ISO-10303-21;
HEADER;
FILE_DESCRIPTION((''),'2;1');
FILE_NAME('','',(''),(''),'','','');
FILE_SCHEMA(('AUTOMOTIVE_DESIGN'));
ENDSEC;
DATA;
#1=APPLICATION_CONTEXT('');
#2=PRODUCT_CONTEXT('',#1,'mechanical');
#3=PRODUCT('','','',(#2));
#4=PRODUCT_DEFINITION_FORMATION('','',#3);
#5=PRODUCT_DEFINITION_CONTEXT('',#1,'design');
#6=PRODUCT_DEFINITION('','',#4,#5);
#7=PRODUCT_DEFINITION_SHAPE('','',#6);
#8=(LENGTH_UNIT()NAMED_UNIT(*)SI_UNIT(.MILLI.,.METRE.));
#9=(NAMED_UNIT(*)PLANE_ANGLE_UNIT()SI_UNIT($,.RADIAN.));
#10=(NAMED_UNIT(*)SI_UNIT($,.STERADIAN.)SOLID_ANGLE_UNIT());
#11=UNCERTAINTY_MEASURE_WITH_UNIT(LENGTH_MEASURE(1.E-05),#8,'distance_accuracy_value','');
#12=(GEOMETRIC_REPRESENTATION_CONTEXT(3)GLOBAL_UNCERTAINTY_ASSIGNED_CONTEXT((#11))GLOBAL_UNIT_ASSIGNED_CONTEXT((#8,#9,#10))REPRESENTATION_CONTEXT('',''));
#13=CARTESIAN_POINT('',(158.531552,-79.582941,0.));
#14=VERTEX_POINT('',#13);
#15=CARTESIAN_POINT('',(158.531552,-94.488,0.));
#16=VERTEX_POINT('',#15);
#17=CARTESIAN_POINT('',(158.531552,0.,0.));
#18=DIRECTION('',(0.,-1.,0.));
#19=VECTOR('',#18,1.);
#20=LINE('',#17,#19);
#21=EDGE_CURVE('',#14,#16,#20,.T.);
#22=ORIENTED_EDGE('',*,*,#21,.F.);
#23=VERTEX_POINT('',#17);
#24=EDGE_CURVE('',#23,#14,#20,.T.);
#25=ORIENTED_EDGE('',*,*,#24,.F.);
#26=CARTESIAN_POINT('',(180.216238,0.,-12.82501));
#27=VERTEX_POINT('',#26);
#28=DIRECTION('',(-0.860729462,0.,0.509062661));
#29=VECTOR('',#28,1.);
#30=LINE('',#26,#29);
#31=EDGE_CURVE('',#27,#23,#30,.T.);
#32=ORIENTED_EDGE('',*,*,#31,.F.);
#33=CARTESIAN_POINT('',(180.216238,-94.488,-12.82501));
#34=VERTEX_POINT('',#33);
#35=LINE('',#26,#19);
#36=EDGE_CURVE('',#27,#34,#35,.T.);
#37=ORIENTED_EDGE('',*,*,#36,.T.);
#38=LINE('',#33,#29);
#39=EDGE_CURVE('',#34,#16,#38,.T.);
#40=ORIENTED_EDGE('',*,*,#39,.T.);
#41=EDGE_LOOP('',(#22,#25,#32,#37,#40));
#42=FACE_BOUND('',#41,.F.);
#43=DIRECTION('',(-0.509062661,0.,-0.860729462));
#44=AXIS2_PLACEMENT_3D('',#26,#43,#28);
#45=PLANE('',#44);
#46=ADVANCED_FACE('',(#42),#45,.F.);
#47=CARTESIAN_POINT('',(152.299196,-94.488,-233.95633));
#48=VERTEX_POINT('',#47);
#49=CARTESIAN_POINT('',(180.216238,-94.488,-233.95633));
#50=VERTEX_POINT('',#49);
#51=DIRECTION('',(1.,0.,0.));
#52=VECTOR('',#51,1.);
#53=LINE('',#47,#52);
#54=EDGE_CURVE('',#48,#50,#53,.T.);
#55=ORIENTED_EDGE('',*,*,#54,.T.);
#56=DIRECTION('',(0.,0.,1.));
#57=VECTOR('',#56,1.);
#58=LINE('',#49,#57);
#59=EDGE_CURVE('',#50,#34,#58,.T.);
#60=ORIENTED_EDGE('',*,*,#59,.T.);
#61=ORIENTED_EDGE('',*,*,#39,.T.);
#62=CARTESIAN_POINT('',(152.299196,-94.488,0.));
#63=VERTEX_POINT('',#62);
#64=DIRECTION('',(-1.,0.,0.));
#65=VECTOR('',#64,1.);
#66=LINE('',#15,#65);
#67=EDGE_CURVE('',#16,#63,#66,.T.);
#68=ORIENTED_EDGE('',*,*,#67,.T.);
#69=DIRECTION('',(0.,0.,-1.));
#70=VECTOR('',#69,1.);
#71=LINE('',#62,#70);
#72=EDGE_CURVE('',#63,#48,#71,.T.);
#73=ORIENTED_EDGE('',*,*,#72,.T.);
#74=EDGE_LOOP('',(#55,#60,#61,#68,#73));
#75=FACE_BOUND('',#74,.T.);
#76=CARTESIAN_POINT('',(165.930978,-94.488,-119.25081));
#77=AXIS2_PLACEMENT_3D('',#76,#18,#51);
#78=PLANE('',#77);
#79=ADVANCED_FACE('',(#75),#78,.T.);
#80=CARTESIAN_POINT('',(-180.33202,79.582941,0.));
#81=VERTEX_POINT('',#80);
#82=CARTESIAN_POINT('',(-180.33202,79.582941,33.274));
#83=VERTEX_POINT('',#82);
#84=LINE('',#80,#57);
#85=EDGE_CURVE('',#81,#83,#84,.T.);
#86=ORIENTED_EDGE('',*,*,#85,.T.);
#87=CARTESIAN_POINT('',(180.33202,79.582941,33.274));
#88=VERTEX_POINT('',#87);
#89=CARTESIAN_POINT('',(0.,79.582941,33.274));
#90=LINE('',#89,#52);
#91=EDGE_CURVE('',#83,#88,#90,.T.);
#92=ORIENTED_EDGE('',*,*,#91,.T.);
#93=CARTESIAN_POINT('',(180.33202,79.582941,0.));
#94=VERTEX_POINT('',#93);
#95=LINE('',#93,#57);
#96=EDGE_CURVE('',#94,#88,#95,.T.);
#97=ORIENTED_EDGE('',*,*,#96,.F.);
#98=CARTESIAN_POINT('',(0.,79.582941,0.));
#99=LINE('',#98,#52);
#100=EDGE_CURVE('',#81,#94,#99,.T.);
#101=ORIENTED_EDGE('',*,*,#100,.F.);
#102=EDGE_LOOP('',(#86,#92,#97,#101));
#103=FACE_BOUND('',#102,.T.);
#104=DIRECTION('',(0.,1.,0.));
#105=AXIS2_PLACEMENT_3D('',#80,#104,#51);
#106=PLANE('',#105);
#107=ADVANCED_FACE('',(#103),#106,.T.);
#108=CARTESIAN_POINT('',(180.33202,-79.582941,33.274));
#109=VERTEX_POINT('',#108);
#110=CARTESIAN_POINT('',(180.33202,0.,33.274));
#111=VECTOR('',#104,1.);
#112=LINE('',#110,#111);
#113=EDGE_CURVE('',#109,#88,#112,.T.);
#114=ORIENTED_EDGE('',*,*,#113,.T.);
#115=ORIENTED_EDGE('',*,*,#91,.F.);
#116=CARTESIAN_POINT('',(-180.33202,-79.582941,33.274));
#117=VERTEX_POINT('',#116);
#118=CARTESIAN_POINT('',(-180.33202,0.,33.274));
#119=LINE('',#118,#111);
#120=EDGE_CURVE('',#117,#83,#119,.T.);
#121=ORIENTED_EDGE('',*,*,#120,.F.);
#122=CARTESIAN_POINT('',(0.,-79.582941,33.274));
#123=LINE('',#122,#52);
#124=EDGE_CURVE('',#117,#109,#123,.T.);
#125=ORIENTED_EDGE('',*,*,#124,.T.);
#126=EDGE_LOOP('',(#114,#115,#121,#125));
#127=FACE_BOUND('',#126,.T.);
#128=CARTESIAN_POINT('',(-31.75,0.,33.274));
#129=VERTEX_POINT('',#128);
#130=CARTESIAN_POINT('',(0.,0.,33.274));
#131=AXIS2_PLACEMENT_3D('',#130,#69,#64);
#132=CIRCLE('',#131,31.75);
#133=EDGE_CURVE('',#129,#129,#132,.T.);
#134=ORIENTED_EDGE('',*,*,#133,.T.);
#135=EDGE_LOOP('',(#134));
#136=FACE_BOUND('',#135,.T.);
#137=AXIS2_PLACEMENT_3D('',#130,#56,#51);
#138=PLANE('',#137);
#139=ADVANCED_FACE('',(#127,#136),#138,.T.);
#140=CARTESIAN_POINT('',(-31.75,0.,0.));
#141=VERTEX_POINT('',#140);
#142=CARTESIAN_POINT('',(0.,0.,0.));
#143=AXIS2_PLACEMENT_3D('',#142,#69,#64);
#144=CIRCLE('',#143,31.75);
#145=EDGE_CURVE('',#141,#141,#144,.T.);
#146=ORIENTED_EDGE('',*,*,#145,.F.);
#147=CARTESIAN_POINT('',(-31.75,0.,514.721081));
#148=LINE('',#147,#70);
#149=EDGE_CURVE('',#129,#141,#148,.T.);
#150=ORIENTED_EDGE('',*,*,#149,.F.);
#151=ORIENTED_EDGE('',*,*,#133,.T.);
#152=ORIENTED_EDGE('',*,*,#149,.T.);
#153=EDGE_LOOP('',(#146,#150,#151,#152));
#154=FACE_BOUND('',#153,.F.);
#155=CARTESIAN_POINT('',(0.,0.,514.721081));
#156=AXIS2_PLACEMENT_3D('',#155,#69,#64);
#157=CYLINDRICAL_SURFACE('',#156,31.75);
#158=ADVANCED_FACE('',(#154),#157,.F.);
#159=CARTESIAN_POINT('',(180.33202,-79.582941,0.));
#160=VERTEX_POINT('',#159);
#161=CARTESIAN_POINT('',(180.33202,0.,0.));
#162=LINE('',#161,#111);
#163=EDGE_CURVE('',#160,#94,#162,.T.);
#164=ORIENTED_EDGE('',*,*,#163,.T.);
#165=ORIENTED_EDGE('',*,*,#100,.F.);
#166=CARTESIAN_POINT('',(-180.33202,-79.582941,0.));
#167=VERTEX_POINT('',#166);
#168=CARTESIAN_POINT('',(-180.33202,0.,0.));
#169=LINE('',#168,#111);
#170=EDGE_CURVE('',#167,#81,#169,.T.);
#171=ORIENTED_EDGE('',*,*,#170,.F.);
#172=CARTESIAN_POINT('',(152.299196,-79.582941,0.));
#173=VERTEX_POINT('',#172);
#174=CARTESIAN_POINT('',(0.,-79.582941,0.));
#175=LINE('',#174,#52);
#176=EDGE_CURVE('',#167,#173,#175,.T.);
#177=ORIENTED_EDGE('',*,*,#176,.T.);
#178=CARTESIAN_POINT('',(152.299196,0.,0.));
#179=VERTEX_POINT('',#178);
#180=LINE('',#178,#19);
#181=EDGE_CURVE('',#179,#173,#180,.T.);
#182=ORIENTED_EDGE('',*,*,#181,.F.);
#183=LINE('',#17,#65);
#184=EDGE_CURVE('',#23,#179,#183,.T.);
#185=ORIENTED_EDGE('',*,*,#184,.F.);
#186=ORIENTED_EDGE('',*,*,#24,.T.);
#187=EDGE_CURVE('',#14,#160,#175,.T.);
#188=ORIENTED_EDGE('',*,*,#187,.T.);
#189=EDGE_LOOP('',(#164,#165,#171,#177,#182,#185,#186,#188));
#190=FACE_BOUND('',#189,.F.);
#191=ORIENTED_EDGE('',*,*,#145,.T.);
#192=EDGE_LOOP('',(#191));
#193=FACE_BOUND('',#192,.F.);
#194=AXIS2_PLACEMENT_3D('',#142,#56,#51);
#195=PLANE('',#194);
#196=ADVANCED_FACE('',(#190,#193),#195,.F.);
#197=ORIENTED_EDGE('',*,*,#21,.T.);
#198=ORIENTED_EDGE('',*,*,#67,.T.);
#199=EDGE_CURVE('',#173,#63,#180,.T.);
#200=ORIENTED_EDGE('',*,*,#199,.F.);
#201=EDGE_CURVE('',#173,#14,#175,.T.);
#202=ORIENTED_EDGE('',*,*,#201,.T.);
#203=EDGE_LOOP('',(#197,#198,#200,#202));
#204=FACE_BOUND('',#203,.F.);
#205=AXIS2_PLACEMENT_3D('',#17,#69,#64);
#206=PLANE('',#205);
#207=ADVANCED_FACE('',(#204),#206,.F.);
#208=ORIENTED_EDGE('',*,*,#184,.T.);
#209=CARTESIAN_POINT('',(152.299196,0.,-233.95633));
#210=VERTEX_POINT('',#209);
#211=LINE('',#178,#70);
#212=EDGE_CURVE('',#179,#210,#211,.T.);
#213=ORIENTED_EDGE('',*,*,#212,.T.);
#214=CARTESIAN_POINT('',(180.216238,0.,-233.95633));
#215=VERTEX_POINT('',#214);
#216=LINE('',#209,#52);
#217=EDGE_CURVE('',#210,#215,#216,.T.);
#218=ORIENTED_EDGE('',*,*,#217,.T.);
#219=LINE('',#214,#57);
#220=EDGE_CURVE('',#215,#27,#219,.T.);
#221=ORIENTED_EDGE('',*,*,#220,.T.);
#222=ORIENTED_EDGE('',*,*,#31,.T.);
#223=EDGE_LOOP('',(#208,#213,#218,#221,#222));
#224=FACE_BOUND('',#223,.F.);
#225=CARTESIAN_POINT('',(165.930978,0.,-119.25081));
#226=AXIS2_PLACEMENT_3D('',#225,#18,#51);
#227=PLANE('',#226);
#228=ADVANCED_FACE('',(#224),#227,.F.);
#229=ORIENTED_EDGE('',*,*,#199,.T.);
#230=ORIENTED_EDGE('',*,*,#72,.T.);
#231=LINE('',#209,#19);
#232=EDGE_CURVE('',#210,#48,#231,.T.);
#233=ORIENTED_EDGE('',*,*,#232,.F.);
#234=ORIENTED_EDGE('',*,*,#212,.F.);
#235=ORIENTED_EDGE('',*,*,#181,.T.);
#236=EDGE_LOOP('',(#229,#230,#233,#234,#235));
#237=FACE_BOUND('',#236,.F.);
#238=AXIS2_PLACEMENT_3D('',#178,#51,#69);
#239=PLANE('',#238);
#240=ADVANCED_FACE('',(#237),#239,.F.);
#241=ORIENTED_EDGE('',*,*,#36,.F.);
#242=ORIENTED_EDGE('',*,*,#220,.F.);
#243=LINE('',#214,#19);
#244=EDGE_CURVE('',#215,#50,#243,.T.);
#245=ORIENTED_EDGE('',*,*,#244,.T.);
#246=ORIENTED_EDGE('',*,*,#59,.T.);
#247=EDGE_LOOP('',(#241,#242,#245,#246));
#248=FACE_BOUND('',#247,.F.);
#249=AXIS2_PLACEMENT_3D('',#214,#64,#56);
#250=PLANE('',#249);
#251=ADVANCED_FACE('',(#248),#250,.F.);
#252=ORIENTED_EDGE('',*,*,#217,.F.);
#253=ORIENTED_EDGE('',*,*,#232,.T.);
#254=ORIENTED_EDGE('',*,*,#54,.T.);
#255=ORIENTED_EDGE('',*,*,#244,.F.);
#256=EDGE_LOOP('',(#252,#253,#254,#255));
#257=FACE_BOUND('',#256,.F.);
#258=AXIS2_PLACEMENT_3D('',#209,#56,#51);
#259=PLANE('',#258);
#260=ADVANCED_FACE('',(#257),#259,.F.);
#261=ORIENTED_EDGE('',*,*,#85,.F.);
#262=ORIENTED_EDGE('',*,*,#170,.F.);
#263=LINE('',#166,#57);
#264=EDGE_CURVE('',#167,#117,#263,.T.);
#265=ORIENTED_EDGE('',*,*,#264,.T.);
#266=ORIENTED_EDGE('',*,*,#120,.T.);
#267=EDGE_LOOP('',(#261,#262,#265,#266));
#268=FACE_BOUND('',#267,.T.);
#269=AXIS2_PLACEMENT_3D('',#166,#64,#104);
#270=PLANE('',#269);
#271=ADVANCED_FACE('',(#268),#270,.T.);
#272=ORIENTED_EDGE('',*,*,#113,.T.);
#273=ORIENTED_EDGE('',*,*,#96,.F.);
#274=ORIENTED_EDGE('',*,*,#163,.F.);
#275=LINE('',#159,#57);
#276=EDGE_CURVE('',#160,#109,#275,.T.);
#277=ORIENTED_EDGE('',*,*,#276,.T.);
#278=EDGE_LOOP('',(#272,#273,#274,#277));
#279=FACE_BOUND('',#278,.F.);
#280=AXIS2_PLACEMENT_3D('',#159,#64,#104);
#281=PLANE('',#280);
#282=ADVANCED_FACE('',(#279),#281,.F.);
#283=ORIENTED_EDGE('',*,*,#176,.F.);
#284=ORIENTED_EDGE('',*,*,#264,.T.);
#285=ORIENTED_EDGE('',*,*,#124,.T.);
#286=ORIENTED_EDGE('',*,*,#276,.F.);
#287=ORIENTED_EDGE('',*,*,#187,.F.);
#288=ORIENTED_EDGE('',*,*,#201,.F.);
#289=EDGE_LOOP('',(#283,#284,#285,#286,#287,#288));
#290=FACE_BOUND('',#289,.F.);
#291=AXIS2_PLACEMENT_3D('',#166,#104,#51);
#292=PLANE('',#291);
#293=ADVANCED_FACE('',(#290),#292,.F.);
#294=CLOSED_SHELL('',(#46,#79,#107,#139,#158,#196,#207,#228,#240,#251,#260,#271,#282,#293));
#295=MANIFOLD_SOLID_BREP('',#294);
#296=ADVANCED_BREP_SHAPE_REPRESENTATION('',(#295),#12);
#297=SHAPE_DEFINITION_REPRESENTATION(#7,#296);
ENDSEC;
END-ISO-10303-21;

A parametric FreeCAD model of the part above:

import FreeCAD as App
import Part
import Sketcher

V = App.Vector
Q = App.Units.Quantity


def add_polygon(sketch, points):
    """Adds a closed chain of lines whose ends are joined by coincident constraints."""
    first, n = sketch.GeometryCount, len(points)
    for a, b in zip(points, points[1:] + points[:1]):
        sketch.addGeometry(Part.LineSegment(App.Vector(*a, 0), App.Vector(*b, 0)), False)
    for i in range(n):
        sketch.addConstraint(Sketcher.Constraint("Coincident", first + i, 2, first + (i + 1) % n, 1))

doc = App.newDocument("Part")
body = doc.addObject("PartDesign::Body", "Body")

sketch1 = doc.addObject("Sketcher::SketchObject", "Sketch")
body.addObject(sketch1)
sketch1.AttachmentSupport = (doc.XY_Plane, [""])
sketch1.MapMode = "FlatFace"
add_polygon(sketch1, [(-180.33202, 79.582941), (-180.33202, -79.582941), (180.33202, -79.582941), (180.33202, 79.582941)])
sketch1.addConstraint(Sketcher.Constraint("Vertical", 0))
sketch1.addConstraint(Sketcher.Constraint("Horizontal", 1))
sketch1.addConstraint(Sketcher.Constraint("Vertical", 2))
sketch1.addConstraint(Sketcher.Constraint("Horizontal", 3))
sketch1.addConstraint(Sketcher.Constraint("Symmetric", 0, 2, 2, 2, -1, 1))
sketch1.addConstraint(Sketcher.Constraint("DistanceX", 1, 1, 1, 2, 360.66404))
sketch1.addConstraint(Sketcher.Constraint("DistanceY", 0, 2, 0, 1, 159.165882))
pad1 = doc.addObject("PartDesign::Pad", "Pad")
body.addObject(pad1)
pad1.Profile = sketch1
pad1.Length = Q("1.31 in")

sketch2 = doc.addObject("Sketcher::SketchObject", "Sketch001")
body.addObject(sketch2)
sketch2.AttachmentSupport = (doc.XZ_Plane, [""])
sketch2.MapMode = "FlatFace"
add_polygon(sketch2, [(158.531552, 0), (152.299196, 0), (152.299196, -233.95633), (180.216238, -233.95633), (180.216238, -12.82501)])
sketch2.addConstraint(Sketcher.Constraint("Horizontal", 0))
sketch2.addConstraint(Sketcher.Constraint("Vertical", 1))
sketch2.addConstraint(Sketcher.Constraint("Horizontal", 2))
sketch2.addConstraint(Sketcher.Constraint("Vertical", 3))
sketch2.addConstraint(Sketcher.Constraint("PointOnObject", 0, 2, -1))
sketch2.addConstraint(Sketcher.Constraint("DistanceY", 1, 2, 1, 1, 233.95633))
sketch2.addConstraint(Sketcher.Constraint("DistanceY", 3, 1, 3, 2, 221.13132))
sketch2.addConstraint(Sketcher.Constraint("Distance", 4, 25.193382))
sketch2.addConstraint(Sketcher.Constraint("DistanceX", 0, 2, 0, 1, 6.232356))
sketch2.addConstraint(Sketcher.Constraint("DistanceX", -1, 1, 2, 2, 180.216238))
pad2 = doc.addObject("PartDesign::Pad", "Pad001")
body.addObject(pad2)
pad2.Profile = sketch2
pad2.Length = Q("3.72 in")

sketch3 = doc.addObject("Sketcher::SketchObject", "Sketch002")
body.addObject(sketch3)
sketch3.AttachmentSupport = (doc.XY_Plane, [""])
sketch3.MapMode = "FlatFace"
sketch3.AttachmentOffset = App.Placement(V(0, 0, 1.31 * 25.4), App.Rotation())
sketch3.addGeometry(Part.Circle(V(0, 0, 0), V(0, 0, 1), 31.75), False)
sketch3.addConstraint(Sketcher.Constraint("Coincident", 0, 3, -1, 1))
sketch3.addConstraint(Sketcher.Constraint("Diameter", 0, Q("2.5 in")))
doc.recompute()
hole = doc.addObject("PartDesign::Hole", "Hole")
body.addObject(hole)
hole.Profile = sketch3
hole.ThreadType = "None"
hole.Diameter = Q("2.5 in")
hole.DepthType = "ThroughAll"

doc.recompute()
